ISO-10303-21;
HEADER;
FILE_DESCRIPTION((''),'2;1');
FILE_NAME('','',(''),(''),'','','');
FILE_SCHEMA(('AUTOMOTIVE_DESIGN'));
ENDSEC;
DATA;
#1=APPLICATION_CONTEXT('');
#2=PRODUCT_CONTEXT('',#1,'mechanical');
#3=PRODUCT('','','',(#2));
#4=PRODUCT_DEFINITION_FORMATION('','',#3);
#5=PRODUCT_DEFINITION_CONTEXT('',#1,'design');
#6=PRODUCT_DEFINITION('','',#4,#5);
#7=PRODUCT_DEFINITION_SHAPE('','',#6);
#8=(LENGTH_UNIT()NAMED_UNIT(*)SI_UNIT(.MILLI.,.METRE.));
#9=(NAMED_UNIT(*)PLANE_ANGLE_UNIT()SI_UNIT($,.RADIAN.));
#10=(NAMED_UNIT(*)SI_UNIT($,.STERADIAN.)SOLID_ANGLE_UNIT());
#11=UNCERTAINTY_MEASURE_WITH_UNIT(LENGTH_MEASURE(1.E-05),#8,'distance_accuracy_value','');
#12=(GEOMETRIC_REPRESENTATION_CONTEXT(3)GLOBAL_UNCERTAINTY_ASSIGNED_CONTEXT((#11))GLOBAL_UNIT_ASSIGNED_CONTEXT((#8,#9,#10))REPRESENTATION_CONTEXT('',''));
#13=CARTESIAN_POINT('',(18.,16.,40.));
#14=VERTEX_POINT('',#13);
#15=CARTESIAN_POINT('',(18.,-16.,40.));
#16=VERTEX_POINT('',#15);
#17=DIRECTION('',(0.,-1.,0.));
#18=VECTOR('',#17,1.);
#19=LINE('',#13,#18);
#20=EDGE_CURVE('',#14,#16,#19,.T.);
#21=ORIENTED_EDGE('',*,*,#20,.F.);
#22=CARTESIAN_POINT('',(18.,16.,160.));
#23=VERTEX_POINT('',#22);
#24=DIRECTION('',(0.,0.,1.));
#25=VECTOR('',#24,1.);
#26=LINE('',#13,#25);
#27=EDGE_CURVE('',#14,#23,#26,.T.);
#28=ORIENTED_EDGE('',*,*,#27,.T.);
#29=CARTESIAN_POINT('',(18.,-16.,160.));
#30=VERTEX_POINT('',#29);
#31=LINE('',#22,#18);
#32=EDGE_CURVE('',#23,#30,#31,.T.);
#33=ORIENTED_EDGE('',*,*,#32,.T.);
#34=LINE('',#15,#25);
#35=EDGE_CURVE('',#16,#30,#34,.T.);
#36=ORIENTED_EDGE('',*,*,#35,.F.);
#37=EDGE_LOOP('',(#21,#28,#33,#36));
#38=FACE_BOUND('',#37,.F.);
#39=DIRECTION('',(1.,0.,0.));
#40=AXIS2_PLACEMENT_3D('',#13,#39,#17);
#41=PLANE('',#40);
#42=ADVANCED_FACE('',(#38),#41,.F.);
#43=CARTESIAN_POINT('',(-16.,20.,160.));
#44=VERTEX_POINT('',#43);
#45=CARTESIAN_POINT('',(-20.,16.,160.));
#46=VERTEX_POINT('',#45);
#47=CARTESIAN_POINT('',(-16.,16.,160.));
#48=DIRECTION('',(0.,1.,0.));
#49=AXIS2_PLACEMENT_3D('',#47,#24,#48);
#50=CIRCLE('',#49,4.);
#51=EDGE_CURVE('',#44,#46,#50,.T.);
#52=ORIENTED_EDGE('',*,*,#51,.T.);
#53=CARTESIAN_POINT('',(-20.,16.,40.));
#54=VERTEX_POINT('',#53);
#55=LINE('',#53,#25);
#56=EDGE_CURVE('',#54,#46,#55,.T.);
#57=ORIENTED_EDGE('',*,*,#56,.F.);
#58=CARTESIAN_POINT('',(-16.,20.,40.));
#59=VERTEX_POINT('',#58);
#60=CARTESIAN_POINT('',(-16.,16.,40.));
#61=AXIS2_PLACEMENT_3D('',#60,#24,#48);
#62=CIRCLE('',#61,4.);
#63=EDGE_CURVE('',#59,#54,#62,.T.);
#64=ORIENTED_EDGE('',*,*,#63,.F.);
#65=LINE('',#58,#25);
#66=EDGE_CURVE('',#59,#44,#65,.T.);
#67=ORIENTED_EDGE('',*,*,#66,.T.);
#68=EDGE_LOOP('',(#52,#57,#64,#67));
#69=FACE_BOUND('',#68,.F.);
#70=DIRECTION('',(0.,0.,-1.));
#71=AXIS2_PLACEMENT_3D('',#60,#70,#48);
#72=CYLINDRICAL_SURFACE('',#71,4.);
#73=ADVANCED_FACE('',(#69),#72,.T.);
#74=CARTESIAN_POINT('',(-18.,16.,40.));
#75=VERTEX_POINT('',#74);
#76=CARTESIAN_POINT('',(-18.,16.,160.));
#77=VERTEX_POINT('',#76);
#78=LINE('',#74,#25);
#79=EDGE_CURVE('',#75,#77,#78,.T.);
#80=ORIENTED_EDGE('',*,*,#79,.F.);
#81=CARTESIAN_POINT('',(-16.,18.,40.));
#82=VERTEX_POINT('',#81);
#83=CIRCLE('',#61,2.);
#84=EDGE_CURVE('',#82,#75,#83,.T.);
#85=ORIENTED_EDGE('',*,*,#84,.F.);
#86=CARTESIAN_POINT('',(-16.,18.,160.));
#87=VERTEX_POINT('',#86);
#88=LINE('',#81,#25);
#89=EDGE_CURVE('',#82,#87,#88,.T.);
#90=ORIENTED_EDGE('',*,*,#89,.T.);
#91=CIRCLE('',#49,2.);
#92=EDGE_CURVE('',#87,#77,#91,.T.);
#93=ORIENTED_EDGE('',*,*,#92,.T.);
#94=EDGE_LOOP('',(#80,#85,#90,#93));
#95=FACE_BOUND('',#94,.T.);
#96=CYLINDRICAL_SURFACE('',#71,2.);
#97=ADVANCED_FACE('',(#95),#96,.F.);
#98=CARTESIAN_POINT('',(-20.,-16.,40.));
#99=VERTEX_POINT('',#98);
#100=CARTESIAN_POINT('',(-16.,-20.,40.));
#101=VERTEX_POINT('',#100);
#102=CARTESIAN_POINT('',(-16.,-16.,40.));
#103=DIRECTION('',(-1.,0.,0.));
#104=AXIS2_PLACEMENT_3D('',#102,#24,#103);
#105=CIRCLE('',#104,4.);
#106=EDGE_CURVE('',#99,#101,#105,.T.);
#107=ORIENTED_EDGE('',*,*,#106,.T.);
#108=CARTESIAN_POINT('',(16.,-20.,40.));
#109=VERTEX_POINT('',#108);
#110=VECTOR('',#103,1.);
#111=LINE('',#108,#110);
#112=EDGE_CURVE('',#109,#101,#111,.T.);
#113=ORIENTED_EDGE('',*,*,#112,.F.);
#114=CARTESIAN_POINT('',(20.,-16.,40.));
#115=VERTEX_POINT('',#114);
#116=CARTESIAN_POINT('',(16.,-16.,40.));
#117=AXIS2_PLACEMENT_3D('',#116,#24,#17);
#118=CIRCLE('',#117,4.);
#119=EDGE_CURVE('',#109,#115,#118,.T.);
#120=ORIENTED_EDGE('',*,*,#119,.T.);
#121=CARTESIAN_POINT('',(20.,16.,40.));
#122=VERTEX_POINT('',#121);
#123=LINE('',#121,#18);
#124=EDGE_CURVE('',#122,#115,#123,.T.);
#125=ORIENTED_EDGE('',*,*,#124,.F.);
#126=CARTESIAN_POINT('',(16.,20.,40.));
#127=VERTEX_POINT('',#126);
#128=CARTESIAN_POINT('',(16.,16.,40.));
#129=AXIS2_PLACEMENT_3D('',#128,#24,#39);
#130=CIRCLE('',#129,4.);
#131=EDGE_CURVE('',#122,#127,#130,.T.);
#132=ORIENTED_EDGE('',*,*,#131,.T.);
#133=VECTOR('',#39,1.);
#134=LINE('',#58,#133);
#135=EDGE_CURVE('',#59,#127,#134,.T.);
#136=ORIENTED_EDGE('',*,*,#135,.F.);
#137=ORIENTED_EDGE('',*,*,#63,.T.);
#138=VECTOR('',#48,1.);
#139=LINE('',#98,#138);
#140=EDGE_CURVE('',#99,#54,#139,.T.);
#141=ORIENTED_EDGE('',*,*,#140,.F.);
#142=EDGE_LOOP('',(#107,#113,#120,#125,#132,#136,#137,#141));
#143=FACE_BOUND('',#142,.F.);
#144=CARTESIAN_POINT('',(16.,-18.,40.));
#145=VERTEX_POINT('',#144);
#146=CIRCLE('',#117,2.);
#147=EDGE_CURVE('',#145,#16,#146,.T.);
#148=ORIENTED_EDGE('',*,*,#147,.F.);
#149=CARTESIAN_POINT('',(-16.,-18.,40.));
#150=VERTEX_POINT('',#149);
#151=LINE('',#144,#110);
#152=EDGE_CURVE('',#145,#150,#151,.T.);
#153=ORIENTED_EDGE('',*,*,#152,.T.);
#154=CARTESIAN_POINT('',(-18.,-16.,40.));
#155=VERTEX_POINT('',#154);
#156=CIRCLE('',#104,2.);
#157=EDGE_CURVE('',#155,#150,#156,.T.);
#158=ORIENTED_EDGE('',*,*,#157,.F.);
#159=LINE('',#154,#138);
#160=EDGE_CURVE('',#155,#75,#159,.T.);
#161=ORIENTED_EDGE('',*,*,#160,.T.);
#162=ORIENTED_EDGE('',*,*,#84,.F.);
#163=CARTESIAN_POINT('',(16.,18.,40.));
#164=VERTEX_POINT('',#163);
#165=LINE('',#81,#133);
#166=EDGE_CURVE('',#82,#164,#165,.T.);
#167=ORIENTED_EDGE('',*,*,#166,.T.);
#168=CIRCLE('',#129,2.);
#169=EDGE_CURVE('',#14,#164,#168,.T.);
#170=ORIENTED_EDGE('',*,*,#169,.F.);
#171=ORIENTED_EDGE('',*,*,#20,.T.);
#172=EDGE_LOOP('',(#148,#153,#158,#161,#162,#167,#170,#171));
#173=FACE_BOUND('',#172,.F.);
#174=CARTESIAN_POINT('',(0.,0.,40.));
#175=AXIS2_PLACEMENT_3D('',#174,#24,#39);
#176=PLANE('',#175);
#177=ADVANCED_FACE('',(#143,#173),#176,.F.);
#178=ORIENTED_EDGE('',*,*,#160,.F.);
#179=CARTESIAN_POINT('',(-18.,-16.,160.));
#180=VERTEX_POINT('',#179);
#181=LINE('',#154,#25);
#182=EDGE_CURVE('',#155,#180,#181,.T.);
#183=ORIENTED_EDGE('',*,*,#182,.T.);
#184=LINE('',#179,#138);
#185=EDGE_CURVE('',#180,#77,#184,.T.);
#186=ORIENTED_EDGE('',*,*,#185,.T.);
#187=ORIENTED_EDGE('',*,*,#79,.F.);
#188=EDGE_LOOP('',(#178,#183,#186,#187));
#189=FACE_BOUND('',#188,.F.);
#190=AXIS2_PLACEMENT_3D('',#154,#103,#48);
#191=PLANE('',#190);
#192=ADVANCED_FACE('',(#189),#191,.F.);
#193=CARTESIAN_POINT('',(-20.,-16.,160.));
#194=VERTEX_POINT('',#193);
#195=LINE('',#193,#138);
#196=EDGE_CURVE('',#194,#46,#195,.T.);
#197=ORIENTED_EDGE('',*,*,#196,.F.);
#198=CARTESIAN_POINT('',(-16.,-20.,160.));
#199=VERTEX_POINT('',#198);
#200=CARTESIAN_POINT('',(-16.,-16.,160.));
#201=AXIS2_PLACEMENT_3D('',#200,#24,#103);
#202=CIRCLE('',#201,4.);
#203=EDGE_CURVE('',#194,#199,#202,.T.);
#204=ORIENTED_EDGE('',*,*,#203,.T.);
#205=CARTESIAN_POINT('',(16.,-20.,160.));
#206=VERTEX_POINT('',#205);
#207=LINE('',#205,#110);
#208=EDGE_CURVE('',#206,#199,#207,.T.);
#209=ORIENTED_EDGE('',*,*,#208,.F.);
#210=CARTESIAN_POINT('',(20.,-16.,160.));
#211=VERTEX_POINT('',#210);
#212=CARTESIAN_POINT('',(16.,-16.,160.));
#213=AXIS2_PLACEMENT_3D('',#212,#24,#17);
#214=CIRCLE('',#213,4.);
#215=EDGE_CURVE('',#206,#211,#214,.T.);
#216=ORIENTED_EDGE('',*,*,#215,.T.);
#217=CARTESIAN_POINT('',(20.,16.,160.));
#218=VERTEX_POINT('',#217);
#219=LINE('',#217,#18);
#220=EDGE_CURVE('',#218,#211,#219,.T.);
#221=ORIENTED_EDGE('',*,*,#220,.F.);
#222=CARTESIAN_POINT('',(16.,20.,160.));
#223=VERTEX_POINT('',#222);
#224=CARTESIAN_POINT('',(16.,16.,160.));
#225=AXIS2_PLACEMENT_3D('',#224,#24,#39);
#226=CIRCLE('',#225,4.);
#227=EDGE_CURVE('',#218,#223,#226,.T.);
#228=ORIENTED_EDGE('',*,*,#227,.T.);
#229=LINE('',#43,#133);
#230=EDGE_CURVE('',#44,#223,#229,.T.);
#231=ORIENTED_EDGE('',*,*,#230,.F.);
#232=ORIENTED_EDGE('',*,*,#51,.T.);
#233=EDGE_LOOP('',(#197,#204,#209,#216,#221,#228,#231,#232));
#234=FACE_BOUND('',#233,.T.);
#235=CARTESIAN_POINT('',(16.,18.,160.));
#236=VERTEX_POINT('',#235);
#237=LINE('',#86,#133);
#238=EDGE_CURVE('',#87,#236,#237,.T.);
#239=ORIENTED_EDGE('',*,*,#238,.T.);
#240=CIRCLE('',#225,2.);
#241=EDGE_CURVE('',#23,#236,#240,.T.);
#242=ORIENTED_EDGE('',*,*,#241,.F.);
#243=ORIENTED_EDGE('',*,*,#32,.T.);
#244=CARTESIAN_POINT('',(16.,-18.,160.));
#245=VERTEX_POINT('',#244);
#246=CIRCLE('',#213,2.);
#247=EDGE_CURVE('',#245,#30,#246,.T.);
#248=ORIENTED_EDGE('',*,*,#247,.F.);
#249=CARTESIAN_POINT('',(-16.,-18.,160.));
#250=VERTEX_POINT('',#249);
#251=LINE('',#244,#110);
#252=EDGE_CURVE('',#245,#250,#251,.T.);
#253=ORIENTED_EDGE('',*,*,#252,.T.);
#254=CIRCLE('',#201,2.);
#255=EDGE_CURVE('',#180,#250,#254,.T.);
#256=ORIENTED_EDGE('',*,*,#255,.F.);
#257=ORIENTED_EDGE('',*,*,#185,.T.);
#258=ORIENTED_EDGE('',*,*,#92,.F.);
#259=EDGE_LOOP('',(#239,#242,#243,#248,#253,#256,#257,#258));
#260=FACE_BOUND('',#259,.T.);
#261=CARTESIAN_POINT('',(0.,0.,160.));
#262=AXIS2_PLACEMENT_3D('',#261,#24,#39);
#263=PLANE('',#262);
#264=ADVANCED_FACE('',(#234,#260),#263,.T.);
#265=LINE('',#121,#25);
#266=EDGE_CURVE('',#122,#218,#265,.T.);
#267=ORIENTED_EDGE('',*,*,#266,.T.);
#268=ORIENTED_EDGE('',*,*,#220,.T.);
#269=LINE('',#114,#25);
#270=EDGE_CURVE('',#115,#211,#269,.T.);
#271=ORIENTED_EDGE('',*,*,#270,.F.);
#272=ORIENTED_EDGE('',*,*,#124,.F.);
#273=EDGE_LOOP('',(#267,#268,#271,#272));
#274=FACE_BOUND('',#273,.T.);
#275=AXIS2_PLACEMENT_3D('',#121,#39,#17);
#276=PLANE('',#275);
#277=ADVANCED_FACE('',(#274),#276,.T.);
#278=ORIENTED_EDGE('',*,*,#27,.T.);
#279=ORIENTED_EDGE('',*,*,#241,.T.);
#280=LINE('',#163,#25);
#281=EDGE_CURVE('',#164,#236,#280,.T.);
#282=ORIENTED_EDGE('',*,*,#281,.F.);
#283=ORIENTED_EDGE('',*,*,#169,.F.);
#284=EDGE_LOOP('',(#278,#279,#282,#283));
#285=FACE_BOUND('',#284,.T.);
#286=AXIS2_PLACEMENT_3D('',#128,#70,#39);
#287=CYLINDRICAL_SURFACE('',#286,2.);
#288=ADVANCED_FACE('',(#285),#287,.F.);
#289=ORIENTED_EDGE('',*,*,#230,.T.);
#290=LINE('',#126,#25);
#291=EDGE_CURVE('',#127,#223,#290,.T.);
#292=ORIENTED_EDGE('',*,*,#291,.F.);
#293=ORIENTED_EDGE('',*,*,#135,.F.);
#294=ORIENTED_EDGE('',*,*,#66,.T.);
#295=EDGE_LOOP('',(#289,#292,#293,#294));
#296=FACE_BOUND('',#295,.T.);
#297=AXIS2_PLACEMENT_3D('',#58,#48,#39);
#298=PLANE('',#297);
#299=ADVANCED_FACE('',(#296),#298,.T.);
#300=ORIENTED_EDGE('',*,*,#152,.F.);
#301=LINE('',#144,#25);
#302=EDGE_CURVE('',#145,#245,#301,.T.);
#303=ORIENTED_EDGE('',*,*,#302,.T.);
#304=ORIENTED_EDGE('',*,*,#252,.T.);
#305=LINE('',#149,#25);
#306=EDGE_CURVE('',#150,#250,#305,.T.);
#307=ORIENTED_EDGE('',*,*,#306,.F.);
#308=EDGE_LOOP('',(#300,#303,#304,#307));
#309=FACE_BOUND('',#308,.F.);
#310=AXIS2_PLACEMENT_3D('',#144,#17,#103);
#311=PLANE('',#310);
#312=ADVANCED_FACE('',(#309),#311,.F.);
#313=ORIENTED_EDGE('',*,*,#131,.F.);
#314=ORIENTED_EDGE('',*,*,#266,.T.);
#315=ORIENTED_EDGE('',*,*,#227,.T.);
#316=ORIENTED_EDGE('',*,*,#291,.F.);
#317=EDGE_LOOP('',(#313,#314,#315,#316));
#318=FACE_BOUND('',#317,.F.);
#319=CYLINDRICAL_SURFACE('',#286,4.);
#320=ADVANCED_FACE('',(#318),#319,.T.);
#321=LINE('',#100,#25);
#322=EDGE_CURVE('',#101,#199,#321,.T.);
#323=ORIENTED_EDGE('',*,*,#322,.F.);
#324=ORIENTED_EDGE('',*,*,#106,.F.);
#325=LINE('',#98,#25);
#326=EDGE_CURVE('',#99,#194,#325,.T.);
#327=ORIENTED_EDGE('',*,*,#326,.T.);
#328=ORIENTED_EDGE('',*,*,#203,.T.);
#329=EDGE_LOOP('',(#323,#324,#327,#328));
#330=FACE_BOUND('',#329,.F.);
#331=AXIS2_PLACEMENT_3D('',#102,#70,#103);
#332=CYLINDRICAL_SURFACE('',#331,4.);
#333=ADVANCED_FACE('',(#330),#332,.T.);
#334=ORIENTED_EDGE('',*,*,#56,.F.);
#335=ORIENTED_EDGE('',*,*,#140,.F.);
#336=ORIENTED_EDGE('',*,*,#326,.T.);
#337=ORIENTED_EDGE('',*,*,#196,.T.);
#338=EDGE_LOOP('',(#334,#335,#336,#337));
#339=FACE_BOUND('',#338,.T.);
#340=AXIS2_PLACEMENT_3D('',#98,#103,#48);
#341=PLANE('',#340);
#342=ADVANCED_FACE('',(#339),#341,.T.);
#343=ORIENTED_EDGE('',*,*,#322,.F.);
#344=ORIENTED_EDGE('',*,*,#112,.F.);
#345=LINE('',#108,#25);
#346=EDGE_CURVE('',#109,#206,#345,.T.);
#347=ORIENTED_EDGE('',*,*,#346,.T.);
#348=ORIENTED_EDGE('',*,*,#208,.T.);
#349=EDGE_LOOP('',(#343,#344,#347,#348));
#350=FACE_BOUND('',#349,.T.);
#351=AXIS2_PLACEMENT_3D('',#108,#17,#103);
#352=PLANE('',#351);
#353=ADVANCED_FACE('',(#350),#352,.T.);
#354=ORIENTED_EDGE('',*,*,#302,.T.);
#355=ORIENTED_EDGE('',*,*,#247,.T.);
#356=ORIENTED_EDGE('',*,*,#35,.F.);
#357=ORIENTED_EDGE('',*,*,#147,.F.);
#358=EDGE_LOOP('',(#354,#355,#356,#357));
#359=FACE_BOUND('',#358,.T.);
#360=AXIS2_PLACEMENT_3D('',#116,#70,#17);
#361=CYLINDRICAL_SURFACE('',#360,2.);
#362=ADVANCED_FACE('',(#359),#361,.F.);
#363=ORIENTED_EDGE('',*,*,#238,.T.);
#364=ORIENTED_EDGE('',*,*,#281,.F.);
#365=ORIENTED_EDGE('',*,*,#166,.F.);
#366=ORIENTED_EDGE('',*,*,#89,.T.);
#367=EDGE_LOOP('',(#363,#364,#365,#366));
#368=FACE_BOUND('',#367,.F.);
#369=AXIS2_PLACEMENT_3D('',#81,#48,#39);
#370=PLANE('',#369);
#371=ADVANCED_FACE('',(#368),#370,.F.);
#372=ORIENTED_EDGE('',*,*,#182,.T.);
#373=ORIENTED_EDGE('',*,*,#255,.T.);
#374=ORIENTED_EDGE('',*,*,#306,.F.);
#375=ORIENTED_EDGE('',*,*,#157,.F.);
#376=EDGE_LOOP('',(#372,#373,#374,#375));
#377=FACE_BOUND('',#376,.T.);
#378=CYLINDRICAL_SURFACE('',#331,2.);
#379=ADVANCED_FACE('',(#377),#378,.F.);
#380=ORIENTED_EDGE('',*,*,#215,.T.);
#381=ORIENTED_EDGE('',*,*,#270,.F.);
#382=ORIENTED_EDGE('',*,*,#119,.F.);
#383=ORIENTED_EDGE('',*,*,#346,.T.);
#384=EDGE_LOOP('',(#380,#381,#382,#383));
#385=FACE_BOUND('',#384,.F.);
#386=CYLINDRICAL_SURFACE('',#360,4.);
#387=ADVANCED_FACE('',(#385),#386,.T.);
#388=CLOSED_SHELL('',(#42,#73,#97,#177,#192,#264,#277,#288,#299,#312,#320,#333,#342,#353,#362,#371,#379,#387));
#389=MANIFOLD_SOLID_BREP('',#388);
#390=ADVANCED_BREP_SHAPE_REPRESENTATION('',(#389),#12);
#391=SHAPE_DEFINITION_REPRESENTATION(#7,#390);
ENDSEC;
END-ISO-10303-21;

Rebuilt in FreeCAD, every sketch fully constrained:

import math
import FreeCAD as App
import Part
import Sketcher
from FreeCAD import Vector

doc = App.newDocument("Part")
body = doc.addObject("PartDesign::Body", "Body")

# Sketch on XY plane
sketch1 = body.newObject("Sketcher::SketchObject", "Sketch")
sketch1.AttachmentSupport = (doc.getObject("XY_Plane"), [""])
sketch1.MapMode = "FlatFace"
sketch1.AttachmentOffset = App.Placement(Vector(0, 0, 40), App.Rotation())
sketch1.addGeometry(Part.LineSegment(Vector(-20, 16, 0), Vector(-20, -16, 0)), False)
sketch1.addGeometry(Part.ArcOfCircle(Part.Circle(Vector(-16, -16, 0), Vector(0, 0, 1), 4), math.radians(180), math.radians(270)), False)
sketch1.addGeometry(Part.LineSegment(Vector(-16, -20, 0), Vector(16, -20, 0)), False)
sketch1.addGeometry(Part.ArcOfCircle(Part.Circle(Vector(16, -16, 0), Vector(0, 0, 1), 4), math.radians(-90), math.radians(0)), False)
sketch1.addGeometry(Part.LineSegment(Vector(20, -16, 0), Vector(20, 16, 0)), False)
sketch1.addGeometry(Part.ArcOfCircle(Part.Circle(Vector(16, 16, 0), Vector(0, 0, 1), 4), math.radians(0), math.radians(90)), False)
sketch1.addGeometry(Part.LineSegment(Vector(16, 20, 0), Vector(-16, 20, 0)), False)
sketch1.addGeometry(Part.ArcOfCircle(Part.Circle(Vector(-16, 16, 0), Vector(0, 0, 1), 4), math.radians(90), math.radians(180)), False)
sketch1.addGeometry(Part.ArcOfCircle(Part.Circle(Vector(-16, 16, 0), Vector(0, 0, 1), 2), math.radians(90), math.radians(180)), False)
sketch1.addGeometry(Part.LineSegment(Vector(-16, 18, 0), Vector(16, 18, 0)), False)
sketch1.addGeometry(Part.ArcOfCircle(Part.Circle(Vector(16, 16, 0), Vector(0, 0, 1), 2), math.radians(0), math.radians(90)), False)
sketch1.addGeometry(Part.LineSegment(Vector(18, 16, 0), Vector(18, -16, 0)), False)
sketch1.addGeometry(Part.ArcOfCircle(Part.Circle(Vector(16, -16, 0), Vector(0, 0, 1), 2), math.radians(-90), math.radians(0)), False)
sketch1.addGeometry(Part.LineSegment(Vector(16, -18, 0), Vector(-16, -18, 0)), False)
sketch1.addGeometry(Part.ArcOfCircle(Part.Circle(Vector(-16, -16, 0), Vector(0, 0, 1), 2), math.radians(180), math.radians(270)), False)
sketch1.addGeometry(Part.LineSegment(Vector(-18, -16, 0), Vector(-18, 16, 0)), False)
sketch1.addConstraint(Sketcher.Constraint("Tangent", 0, 2, 1, 1))
sketch1.addConstraint(Sketcher.Constraint("Tangent", 1, 2, 2, 1))
sketch1.addConstraint(Sketcher.Constraint("Tangent", 2, 2, 3, 1))
sketch1.addConstraint(Sketcher.Constraint("Tangent", 3, 2, 4, 1))
sketch1.addConstraint(Sketcher.Constraint("Tangent", 4, 2, 5, 1))
sketch1.addConstraint(Sketcher.Constraint("Tangent", 5, 2, 6, 1))
sketch1.addConstraint(Sketcher.Constraint("Tangent", 6, 2, 7, 1))
sketch1.addConstraint(Sketcher.Constraint("Tangent", 7, 2, 0, 1))
sketch1.addConstraint(Sketcher.Constraint("Tangent", 8, 1, 9, 1))
sketch1.addConstraint(Sketcher.Constraint("Tangent", 9, 2, 10, 2))
sketch1.addConstraint(Sketcher.Constraint("Tangent", 10, 1, 11, 1))
sketch1.addConstraint(Sketcher.Constraint("Tangent", 11, 2, 12, 2))
sketch1.addConstraint(Sketcher.Constraint("Tangent", 12, 1, 13, 1))
sketch1.addConstraint(Sketcher.Constraint("Tangent", 13, 2, 14, 2))
sketch1.addConstraint(Sketcher.Constraint("Tangent", 14, 1, 15, 1))
sketch1.addConstraint(Sketcher.Constraint("Tangent", 15, 2, 8, 2))
sketch1.addConstraint(Sketcher.Constraint("Vertical", 0))
sketch1.addConstraint(Sketcher.Constraint("Horizontal", 2))
sketch1.addConstraint(Sketcher.Constraint("Vertical", 4))
sketch1.addConstraint(Sketcher.Constraint("Horizontal", 6))
sketch1.addConstraint(Sketcher.Constraint("Horizontal", 9))
sketch1.addConstraint(Sketcher.Constraint("Vertical", 11))
sketch1.addConstraint(Sketcher.Constraint("Horizontal", 13))
sketch1.addConstraint(Sketcher.Constraint("Vertical", 15))
sketch1.addConstraint(Sketcher.Constraint("Coincident", 8, 3, 7, 3))
sketch1.addConstraint(Sketcher.Constraint("Coincident", 10, 3, 5, 3))
sketch1.addConstraint(Sketcher.Constraint("Coincident", 12, 3, 3, 3))
sketch1.addConstraint(Sketcher.Constraint("Equal", 1, 3))
sketch1.addConstraint(Sketcher.Constraint("Equal", 3, 5))
sketch1.addConstraint(Sketcher.Constraint("Equal", 5, 7))
sketch1.addConstraint(Sketcher.Constraint("Equal", 12, 14))
sketch1.addConstraint(Sketcher.Constraint("Symmetric", 1, 3, 5, 3, -1, 1))
sketch1.addConstraint(Sketcher.Constraint("Equal", 13, 0))
sketch1.addConstraint(Sketcher.Constraint("Radius", 1, 4.0))
sketch1.addConstraint(Sketcher.Constraint("Radius", 8, 2.0))
sketch1.addConstraint(Sketcher.Constraint("DistanceX", 0, 2, -1, 1, 20.0))
pad1 = body.newObject("PartDesign::Pad", "Pad")
pad1.Profile = sketch1
pad1.Length = 120

doc.recompute()
